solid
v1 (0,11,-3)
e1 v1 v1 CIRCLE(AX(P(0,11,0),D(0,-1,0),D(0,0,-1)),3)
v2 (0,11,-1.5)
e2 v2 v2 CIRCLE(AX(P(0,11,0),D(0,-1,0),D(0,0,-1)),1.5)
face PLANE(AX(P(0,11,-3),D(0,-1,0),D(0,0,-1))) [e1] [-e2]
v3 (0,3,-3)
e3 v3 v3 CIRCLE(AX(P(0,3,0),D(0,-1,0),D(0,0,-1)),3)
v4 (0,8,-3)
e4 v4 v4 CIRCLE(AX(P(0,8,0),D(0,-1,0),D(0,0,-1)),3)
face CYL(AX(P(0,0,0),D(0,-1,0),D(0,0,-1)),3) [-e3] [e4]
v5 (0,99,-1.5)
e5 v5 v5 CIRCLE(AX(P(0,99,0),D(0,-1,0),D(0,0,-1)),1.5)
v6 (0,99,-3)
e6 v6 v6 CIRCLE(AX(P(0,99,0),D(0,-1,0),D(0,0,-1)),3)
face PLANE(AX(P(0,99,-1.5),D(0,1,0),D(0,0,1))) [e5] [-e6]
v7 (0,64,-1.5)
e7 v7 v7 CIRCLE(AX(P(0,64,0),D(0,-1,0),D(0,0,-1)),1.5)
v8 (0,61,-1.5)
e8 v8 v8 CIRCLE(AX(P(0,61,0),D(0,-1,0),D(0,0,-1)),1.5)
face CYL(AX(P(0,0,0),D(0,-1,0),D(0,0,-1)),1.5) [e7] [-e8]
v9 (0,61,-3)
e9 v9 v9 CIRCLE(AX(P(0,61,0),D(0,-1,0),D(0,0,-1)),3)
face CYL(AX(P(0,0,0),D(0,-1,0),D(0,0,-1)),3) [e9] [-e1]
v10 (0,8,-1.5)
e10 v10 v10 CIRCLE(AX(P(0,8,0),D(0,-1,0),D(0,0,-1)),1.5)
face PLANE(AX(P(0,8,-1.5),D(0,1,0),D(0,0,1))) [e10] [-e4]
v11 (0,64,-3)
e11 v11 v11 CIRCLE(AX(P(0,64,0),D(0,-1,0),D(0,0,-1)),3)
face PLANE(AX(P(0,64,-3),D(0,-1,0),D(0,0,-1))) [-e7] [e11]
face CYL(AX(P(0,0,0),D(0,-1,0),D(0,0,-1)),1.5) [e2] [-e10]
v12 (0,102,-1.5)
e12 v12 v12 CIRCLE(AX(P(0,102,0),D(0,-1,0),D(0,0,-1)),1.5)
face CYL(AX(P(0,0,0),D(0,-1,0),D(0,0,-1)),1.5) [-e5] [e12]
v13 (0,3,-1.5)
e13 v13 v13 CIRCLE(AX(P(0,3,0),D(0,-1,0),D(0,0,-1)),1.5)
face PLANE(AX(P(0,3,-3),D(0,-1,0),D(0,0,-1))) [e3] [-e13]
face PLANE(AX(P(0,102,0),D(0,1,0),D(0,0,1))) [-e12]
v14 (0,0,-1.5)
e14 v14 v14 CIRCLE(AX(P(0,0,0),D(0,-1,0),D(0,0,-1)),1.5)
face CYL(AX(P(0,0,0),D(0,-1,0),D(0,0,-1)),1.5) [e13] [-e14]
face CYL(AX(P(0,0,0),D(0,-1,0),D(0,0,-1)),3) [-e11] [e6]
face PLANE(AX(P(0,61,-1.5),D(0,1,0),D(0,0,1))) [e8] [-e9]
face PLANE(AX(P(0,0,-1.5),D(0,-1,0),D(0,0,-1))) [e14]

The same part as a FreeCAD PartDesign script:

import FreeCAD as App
import Part
import Sketcher
Q = App.Units.Quantity

doc = App.newDocument("Part")
body = doc.addObject("PartDesign::Body", "Body")

# Sketch on YZ plane
sketch1 = body.newObject("Sketcher::SketchObject", "Sketch")
sketch1.AttachmentSupport = (doc.getObject("YZ_Plane"), [""])
sketch1.MapMode = "FlatFace"
sketch1.addGeometry(Part.LineSegment(App.Vector(102, -1.5, 0), App.Vector(102, 0, 0)), False)
sketch1.addGeometry(Part.LineSegment(App.Vector(102, 0, 0), App.Vector(0, 0, 0)), False)
sketch1.addGeometry(Part.LineSegment(App.Vector(0, 0, 0), App.Vector(0, -1.5, 0)), False)
sketch1.addGeometry(Part.LineSegment(App.Vector(0, -1.5, 0), App.Vector(3, -1.5, 0)), False)
sketch1.addGeometry(Part.LineSegment(App.Vector(3, -1.5, 0), App.Vector(3, -3, 0)), False)
sketch1.addGeometry(Part.LineSegment(App.Vector(3, -3, 0), App.Vector(8, -3, 0)), False)
sketch1.addGeometry(Part.LineSegment(App.Vector(8, -3, 0), App.Vector(8, -1.5, 0)), False)
sketch1.addGeometry(Part.LineSegment(App.Vector(8, -1.5, 0), App.Vector(11, -1.5, 0)), False)
sketch1.addGeometry(Part.LineSegment(App.Vector(11, -1.5, 0), App.Vector(11, -3, 0)), False)
sketch1.addGeometry(Part.LineSegment(App.Vector(11, -3, 0), App.Vector(61, -3, 0)), False)
sketch1.addGeometry(Part.LineSegment(App.Vector(61, -3, 0), App.Vector(61, -1.5, 0)), False)
sketch1.addGeometry(Part.LineSegment(App.Vector(61, -1.5, 0), App.Vector(64, -1.5, 0)), False)
sketch1.addGeometry(Part.LineSegment(App.Vector(64, -1.5, 0), App.Vector(64, -3, 0)), False)
sketch1.addGeometry(Part.LineSegment(App.Vector(64, -3, 0), App.Vector(99, -3, 0)), False)
sketch1.addGeometry(Part.LineSegment(App.Vector(99, -3, 0), App.Vector(99, -1.5, 0)), False)
sketch1.addGeometry(Part.LineSegment(App.Vector(99, -1.5, 0), App.Vector(102, -1.5, 0)), False)
sketch1.addConstraint(Sketcher.Constraint("Coincident", 0, 2, 1, 1))
sketch1.addConstraint(Sketcher.Constraint("Coincident", 1, 2, 2, 1))
sketch1.addConstraint(Sketcher.Constraint("Coincident", 2, 2, 3, 1))
sketch1.addConstraint(Sketcher.Constraint("Coincident", 3, 2, 4, 1))
sketch1.addConstraint(Sketcher.Constraint("Coincident", 4, 2, 5, 1))
sketch1.addConstraint(Sketcher.Constraint("Coincident", 5, 2, 6, 1))
sketch1.addConstraint(Sketcher.Constraint("Coincident", 6, 2, 7, 1))
sketch1.addConstraint(Sketcher.Constraint("Coincident", 7, 2, 8, 1))
sketch1.addConstraint(Sketcher.Constraint("Coincident", 8, 2, 9, 1))
sketch1.addConstraint(Sketcher.Constraint("Coincident", 9, 2, 10, 1))
sketch1.addConstraint(Sketcher.Constraint("Coincident", 10, 2, 11, 1))
sketch1.addConstraint(Sketcher.Constraint("Coincident", 11, 2, 12, 1))
sketch1.addConstraint(Sketcher.Constraint("Coincident", 12, 2, 13, 1))
sketch1.addConstraint(Sketcher.Constraint("Coincident", 13, 2, 14, 1))
sketch1.addConstraint(Sketcher.Constraint("Coincident", 14, 2, 15, 1))
sketch1.addConstraint(Sketcher.Constraint("Coincident", 15, 2, 0, 1))
sketch1.addConstraint(Sketcher.Constraint("Vertical", 0))
sketch1.addConstraint(Sketcher.Constraint("Horizontal", 1))
sketch1.addConstraint(Sketcher.Constraint("Vertical", 2))
sketch1.addConstraint(Sketcher.Constraint("Horizontal", 3))
sketch1.addConstraint(Sketcher.Constraint("Vertical", 4))
sketch1.addConstraint(Sketcher.Constraint("Horizontal", 5))
sketch1.addConstraint(Sketcher.Constraint("Vertical", 6))
sketch1.addConstraint(Sketcher.Constraint("Horizontal", 7))
sketch1.addConstraint(Sketcher.Constraint("Vertical", 8))
sketch1.addConstraint(Sketcher.Constraint("Horizontal", 9))
sketch1.addConstraint(Sketcher.Constraint("Vertical", 10))
sketch1.addConstraint(Sketcher.Constraint("Horizontal", 11))
sketch1.addConstraint(Sketcher.Constraint("Vertical", 12))
sketch1.addConstraint(Sketcher.Constraint("Horizontal", 13))
sketch1.addConstraint(Sketcher.Constraint("Vertical", 14))
sketch1.addConstraint(Sketcher.Constraint("Horizontal", 15))
sketch1.addConstraint(Sketcher.Constraint("Coincident", 1, 2, -1, 1))
sketch1.addConstraint(Sketcher.Constraint("Horizontal", 3, 2, 6, 2))
sketch1.addConstraint(Sketcher.Constraint("Horizontal", 5, 2, 8, 2))
sketch1.addConstraint(Sketcher.Constraint("Horizontal", 7, 2, 10, 2))
sketch1.addConstraint(Sketcher.Constraint("Horizontal", 9, 2, 12, 2))
sketch1.addConstraint(Sketcher.Constraint("Horizontal", 11, 2, 14, 2))
sketch1.addConstraint(Sketcher.Constraint("Equal", 3, 7))
sketch1.addConstraint(Sketcher.Constraint("Equal", 7, 11))
sketch1.addConstraint(Sketcher.Constraint("Equal", 11, 15))
sketch1.addConstraint(Sketcher.Constraint("Equal", 2, 4))
sketch1.addConstraint(Sketcher.Constraint("DistanceX", 1, 2, 1, 1, Q("102 mm")))
sketch1.addConstraint(Sketcher.Constraint("DistanceX", 3, 1, 3, 2, Q("3 mm")))
sketch1.addConstraint(Sketcher.Constraint("DistanceX", 5, 1, 5, 2, Q("5 mm")))
sketch1.addConstraint(Sketcher.Constraint("DistanceX", 9, 1, 9, 2, Q("50 mm")))
sketch1.addConstraint(Sketcher.Constraint("DistanceY", 0, 1, 0, 2, Q("1.5 mm")))
revolution = body.newObject("PartDesign::Revolution", "Revolution")
revolution.Profile = sketch1
revolution.ReferenceAxis = (sketch1, ["H_Axis"])
revolution.Angle = 360

doc.recompute()
